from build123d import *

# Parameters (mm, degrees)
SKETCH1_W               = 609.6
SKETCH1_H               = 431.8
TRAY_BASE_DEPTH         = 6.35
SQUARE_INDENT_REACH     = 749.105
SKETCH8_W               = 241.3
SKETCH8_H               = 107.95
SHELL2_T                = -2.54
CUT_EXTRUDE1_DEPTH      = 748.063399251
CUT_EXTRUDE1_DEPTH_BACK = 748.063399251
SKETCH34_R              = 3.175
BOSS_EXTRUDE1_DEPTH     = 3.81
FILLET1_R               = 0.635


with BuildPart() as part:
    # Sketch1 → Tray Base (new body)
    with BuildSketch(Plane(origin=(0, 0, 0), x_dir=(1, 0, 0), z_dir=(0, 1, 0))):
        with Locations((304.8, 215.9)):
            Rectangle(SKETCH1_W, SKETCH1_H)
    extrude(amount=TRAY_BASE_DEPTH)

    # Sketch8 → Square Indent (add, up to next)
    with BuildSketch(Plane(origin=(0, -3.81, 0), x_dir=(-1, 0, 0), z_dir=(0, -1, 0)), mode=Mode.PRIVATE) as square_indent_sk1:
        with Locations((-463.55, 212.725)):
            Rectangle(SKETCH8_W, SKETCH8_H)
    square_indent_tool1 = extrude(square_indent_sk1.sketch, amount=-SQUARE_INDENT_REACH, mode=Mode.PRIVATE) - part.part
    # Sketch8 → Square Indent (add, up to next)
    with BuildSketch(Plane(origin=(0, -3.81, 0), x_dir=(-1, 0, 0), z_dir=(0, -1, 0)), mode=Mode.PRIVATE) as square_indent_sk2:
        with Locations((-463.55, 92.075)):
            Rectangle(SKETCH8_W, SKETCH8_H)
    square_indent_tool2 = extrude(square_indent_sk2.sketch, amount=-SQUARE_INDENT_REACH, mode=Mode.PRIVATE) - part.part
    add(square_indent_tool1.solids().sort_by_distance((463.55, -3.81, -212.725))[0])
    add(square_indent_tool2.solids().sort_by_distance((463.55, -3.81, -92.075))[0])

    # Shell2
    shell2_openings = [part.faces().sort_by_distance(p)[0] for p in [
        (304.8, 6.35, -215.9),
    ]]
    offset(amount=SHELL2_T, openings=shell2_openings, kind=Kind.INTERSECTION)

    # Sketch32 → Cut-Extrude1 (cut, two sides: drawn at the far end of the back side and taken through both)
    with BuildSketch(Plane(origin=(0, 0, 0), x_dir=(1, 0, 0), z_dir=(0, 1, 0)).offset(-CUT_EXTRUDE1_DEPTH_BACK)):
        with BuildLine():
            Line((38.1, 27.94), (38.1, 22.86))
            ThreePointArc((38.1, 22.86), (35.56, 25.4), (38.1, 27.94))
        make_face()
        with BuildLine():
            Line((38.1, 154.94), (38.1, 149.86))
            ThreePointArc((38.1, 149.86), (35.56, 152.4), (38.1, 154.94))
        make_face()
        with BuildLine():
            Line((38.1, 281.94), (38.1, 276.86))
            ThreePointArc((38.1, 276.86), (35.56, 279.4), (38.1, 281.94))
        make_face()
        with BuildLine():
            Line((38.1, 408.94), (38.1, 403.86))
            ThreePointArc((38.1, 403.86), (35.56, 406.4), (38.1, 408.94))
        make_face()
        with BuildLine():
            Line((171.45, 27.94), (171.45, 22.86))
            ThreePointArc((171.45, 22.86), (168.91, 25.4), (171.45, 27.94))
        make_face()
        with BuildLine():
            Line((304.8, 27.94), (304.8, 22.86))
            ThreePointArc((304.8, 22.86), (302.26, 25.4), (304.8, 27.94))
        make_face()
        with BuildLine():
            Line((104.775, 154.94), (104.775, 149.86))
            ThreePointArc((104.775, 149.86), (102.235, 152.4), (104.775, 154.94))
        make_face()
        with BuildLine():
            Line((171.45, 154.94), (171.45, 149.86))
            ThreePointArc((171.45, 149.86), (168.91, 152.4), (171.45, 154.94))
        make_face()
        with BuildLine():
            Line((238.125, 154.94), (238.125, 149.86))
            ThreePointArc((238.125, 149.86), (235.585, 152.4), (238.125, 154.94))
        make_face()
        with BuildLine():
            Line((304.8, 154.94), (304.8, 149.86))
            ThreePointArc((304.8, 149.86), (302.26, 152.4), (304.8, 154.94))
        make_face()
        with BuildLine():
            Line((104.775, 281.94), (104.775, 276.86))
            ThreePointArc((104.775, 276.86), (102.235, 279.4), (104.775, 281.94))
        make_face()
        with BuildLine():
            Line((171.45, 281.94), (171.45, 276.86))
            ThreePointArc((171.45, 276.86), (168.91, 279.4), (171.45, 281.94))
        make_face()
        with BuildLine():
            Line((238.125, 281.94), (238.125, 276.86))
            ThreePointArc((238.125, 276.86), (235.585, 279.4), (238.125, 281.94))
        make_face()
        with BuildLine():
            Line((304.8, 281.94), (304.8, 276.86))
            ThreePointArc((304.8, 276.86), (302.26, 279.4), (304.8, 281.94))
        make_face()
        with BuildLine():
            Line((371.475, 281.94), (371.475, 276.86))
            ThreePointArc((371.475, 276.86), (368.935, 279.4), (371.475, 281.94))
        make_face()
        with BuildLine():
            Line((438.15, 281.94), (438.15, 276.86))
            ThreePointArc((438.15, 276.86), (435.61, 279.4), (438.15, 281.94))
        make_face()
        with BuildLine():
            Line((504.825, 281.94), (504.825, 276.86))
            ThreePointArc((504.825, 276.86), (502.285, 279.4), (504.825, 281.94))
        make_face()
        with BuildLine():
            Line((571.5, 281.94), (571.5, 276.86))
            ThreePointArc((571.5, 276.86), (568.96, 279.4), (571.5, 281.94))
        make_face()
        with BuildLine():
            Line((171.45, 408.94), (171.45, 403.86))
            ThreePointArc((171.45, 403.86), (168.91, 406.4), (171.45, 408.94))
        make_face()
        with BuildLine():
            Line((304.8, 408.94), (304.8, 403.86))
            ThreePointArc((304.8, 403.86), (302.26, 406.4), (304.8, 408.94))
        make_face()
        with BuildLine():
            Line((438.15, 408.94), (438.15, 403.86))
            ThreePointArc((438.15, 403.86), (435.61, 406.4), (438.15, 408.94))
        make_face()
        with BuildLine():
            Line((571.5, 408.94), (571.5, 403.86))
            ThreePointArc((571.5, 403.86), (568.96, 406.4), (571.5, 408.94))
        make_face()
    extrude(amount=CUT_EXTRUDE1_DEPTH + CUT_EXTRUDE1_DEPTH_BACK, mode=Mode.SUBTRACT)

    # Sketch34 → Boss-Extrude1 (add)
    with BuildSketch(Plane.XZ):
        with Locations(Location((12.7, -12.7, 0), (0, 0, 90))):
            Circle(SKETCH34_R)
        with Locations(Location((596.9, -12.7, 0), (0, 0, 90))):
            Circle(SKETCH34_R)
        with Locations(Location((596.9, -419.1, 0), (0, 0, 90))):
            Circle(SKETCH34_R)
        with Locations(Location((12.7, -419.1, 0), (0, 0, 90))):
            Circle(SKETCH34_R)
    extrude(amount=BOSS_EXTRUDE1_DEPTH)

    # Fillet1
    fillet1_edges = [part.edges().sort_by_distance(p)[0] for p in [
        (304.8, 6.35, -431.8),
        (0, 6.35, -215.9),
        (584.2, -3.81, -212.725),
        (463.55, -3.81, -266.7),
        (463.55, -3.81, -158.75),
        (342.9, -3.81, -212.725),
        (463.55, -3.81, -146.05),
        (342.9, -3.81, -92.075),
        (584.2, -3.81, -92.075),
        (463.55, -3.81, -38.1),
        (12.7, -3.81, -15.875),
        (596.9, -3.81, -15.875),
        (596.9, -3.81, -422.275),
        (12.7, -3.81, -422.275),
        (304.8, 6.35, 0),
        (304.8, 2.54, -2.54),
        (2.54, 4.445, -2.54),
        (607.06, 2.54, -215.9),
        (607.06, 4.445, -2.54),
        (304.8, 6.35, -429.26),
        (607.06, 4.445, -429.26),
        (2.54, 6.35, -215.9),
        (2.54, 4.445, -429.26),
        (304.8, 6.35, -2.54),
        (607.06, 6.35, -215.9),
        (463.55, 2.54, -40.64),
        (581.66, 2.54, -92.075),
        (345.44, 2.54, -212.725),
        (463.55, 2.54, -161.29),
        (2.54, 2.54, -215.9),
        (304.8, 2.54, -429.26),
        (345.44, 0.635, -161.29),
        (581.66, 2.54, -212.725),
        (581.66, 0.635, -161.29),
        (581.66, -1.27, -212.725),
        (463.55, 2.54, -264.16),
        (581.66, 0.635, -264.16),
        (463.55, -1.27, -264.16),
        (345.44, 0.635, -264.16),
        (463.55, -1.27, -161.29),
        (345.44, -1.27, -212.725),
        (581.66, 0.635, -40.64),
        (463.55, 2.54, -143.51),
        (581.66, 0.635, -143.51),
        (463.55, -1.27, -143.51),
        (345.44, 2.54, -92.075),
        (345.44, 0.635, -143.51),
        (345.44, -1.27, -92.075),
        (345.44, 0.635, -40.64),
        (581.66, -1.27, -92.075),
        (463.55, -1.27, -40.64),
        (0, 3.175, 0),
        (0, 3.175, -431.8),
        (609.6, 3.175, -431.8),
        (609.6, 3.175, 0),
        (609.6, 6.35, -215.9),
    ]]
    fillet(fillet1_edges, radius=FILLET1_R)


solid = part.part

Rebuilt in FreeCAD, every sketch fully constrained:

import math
import FreeCAD as App
import Part
import Sketcher

V = App.Vector
Q = App.Units.Quantity


def edges_at(feature, points):
    """Names of the edges that pass closest to the given points."""
    edges = feature.Shape.Edges
    near = lambda p: min(range(len(edges)), key=lambda i: edges[i].distToShape(Part.Vertex(*p))[0])
    return sorted({f"Edge{near(p) + 1}" for p in points})


def faces_at(feature, points):
    """Names of the faces that lie closest to the given points."""
    faces = feature.Shape.Faces
    near = lambda p: min(range(len(faces)), key=lambda i: faces[i].distToShape(Part.Vertex(*p))[0])
    return sorted({f"Face{near(p) + 1}" for p in points})

doc = App.newDocument("Part")
body = doc.addObject("PartDesign::Body", "Body")

sketch1 = body.newObject("Sketcher::SketchObject", "Sketch")
sketch1.AttachmentSupport = (doc.getObject("XZ_Plane"), [""])
sketch1.MapMode = "FlatFace"
sketch1.addGeometry(Part.LineSegment(V(0, -431.8, 0), V(0, 0, 0)), False)
sketch1.addGeometry(Part.LineSegment(V(0, 0, 0), V(609.6, 0, 0)), False)
sketch1.addGeometry(Part.LineSegment(V(609.6, 0, 0), V(609.6, -431.8, 0)), False)
sketch1.addGeometry(Part.LineSegment(V(609.6, -431.8, 0), V(0, -431.8, 0)), False)
sketch1.addConstraint(Sketcher.Constraint("Coincident", 0, 2, 1, 1))
sketch1.addConstraint(Sketcher.Constraint("Coincident", 1, 2, 2, 1))
sketch1.addConstraint(Sketcher.Constraint("Coincident", 2, 2, 3, 1))
sketch1.addConstraint(Sketcher.Constraint("Coincident", 3, 2, 0, 1))
sketch1.addConstraint(Sketcher.Constraint("Vertical", 0))
sketch1.addConstraint(Sketcher.Constraint("Horizontal", 1))
sketch1.addConstraint(Sketcher.Constraint("Vertical", 2))
sketch1.addConstraint(Sketcher.Constraint("Horizontal", 3))
sketch1.addConstraint(Sketcher.Constraint("Coincident", 0, 2, -1, 1))
sketch1.addConstraint(Sketcher.Constraint("DistanceX", 1, 1, 1, 2, Q("24 in")))
sketch1.addConstraint(Sketcher.Constraint("DistanceY", 0, 1, 0, 2, Q("17 in")))
pad1 = body.newObject("PartDesign::Pad", "Pad")
pad1.Profile = sketch1
pad1.Length = Q("0.25 in")
pad1.Reversed = True

sketch2 = body.newObject("Sketcher::SketchObject", "Sketch001")
sketch2.AttachmentSupport = (doc.getObject("XZ_Plane"), [""])
sketch2.MapMode = "FlatFace"
sketch2.AttachmentOffset = App.Placement(V(0, 0, 0.15 * 25.4), App.Rotation())
sketch2.addGeometry(Part.LineSegment(V(584.2, -266.7, 0), V(584.2, -158.75, 0)), False)
sketch2.addGeometry(Part.LineSegment(V(584.2, -158.75, 0), V(342.9, -158.75, 0)), False)
sketch2.addGeometry(Part.LineSegment(V(342.9, -158.75, 0), V(342.9, -266.7, 0)), False)
sketch2.addGeometry(Part.LineSegment(V(342.9, -266.7, 0), V(584.2, -266.7, 0)), False)
sketch2.addConstraint(Sketcher.Constraint("Coincident", 0, 2, 1, 1))
sketch2.addConstraint(Sketcher.Constraint("Coincident", 1, 2, 2, 1))
sketch2.addConstraint(Sketcher.Constraint("Coincident", 2, 2, 3, 1))
sketch2.addConstraint(Sketcher.Constraint("Coincident", 3, 2, 0, 1))
sketch2.addConstraint(Sketcher.Constraint("Vertical", 0))
sketch2.addConstraint(Sketcher.Constraint("Horizontal", 1))
sketch2.addConstraint(Sketcher.Constraint("Vertical", 2))
sketch2.addConstraint(Sketcher.Constraint("Horizontal", 3))
sketch2.addConstraint(Sketcher.Constraint("DistanceX", 1, 2, 1, 1, Q("9.5 in")))
sketch2.addConstraint(Sketcher.Constraint("DistanceX", -1, 1, 0, 2, Q("23 in")))
sketch2.addConstraint(Sketcher.Constraint("DistanceY", 0, 1, 0, 2, Q("4.25 in")))
sketch2.addConstraint(Sketcher.Constraint("DistanceY", 2, 2, -1, 1, Q("10.5 in")))
pad2 = body.newObject("PartDesign::Pad", "Pad001")
pad2.Profile = sketch2
pad2.Type = "UpToFirst"
pad2.Reversed = True

sketch3 = body.newObject("Sketcher::SketchObject", "Sketch002")
sketch3.AttachmentSupport = (doc.getObject("XZ_Plane"), [""])
sketch3.MapMode = "FlatFace"
sketch3.AttachmentOffset = App.Placement(V(0, 0, 0.15 * 25.4), App.Rotation())
sketch3.addGeometry(Part.LineSegment(V(584.2, -146.05, 0), V(584.2, -38.1, 0)), False)
sketch3.addGeometry(Part.LineSegment(V(584.2, -38.1, 0), V(342.9, -38.1, 0)), False)
sketch3.addGeometry(Part.LineSegment(V(342.9, -38.1, 0), V(342.9, -146.05, 0)), False)
sketch3.addGeometry(Part.LineSegment(V(342.9, -146.05, 0), V(584.2, -146.05, 0)), False)
sketch3.addConstraint(Sketcher.Constraint("Coincident", 0, 2, 1, 1))
sketch3.addConstraint(Sketcher.Constraint("Coincident", 1, 2, 2, 1))
sketch3.addConstraint(Sketcher.Constraint("Coincident", 2, 2, 3, 1))
sketch3.addConstraint(Sketcher.Constraint("Coincident", 3, 2, 0, 1))
sketch3.addConstraint(Sketcher.Constraint("Vertical", 0))
sketch3.addConstraint(Sketcher.Constraint("Horizontal", 1))
sketch3.addConstraint(Sketcher.Constraint("Vertical", 2))
sketch3.addConstraint(Sketcher.Constraint("Horizontal", 3))
sketch3.addConstraint(Sketcher.Constraint("DistanceX", 1, 2, 1, 1, Q("9.5 in")))
sketch3.addConstraint(Sketcher.Constraint("DistanceX", -1, 1, 0, 2, Q("23 in")))
sketch3.addConstraint(Sketcher.Constraint("DistanceY", 0, 1, 0, 2, Q("4.25 in")))
sketch3.addConstraint(Sketcher.Constraint("DistanceY", 0, 2, -1, 1, Q("1.5 in")))
pad3 = body.newObject("PartDesign::Pad", "Pad002")
pad3.Profile = sketch3
pad3.Type = "UpToFirst"
pad3.Reversed = True
doc.recompute()

thickness = body.newObject("PartDesign::Thickness", "Thickness")
thickness.Base = (pad3, faces_at(pad3, [(304.8, 6.35, -215.9)]))
thickness.Value = Q("0.1 in")
thickness.Reversed = True
thickness.Join = "Intersection"

sketch4 = body.newObject("Sketcher::SketchObject", "Sketch003")
sketch4.AttachmentSupport = (doc.getObject("XZ_Plane"), [""])
sketch4.MapMode = "FlatFace"
sketch4.addGeometry(Part.LineSegment(V(38.1, -22.86, 0), V(38.1, -27.94, 0)), False)
sketch4.addGeometry(Part.ArcOfCircle(Part.Circle(V(38.1, -25.4, 0), V(0, 0, 1), 2.54), math.radians(90), math.radians(270)), False)
sketch4.addGeometry(Part.LineSegment(V(38.1, -149.86, 0), V(38.1, -154.94, 0)), False)
sketch4.addGeometry(Part.ArcOfCircle(Part.Circle(V(38.1, -152.4, 0), V(0, 0, 1), 2.54), math.radians(90), math.radians(270)), False)
sketch4.addGeometry(Part.LineSegment(V(38.1, -276.86, 0), V(38.1, -281.94, 0)), False)
sketch4.addGeometry(Part.ArcOfCircle(Part.Circle(V(38.1, -279.4, 0), V(0, 0, 1), 2.54), math.radians(90), math.radians(270)), False)
sketch4.addGeometry(Part.LineSegment(V(38.1, -403.86, 0), V(38.1, -408.94, 0)), False)
sketch4.addGeometry(Part.ArcOfCircle(Part.Circle(V(38.1, -406.4, 0), V(0, 0, 1), 2.54), math.radians(90), math.radians(270)), False)
sketch4.addGeometry(Part.LineSegment(V(171.45, -22.86, 0), V(171.45, -27.94, 0)), False)
sketch4.addGeometry(Part.ArcOfCircle(Part.Circle(V(171.45, -25.4, 0), V(0, 0, 1), 2.54), math.radians(90), math.radians(270)), False)
sketch4.addGeometry(Part.LineSegment(V(304.8, -22.86, 0), V(304.8, -27.94, 0)), False)
sketch4.addGeometry(Part.ArcOfCircle(Part.Circle(V(304.8, -25.4, 0), V(0, 0, 1), 2.54), math.radians(90), math.radians(270)), False)
sketch4.addGeometry(Part.LineSegment(V(104.775, -149.86, 0), V(104.775, -154.94, 0)), False)
sketch4.addGeometry(Part.ArcOfCircle(Part.Circle(V(104.775, -152.4, 0), V(0, 0, 1), 2.54), math.radians(90), math.radians(270)), False)
sketch4.addGeometry(Part.LineSegment(V(171.45, -149.86, 0), V(171.45, -154.94, 0)), False)
sketch4.addGeometry(Part.ArcOfCircle(Part.Circle(V(171.45, -152.4, 0), V(0, 0, 1), 2.54), math.radians(90), math.radians(270)), False)
sketch4.addGeometry(Part.LineSegment(V(238.125, -149.86, 0), V(238.125, -154.94, 0)), False)
sketch4.addGeometry(Part.ArcOfCircle(Part.Circle(V(238.125, -152.4, 0), V(0, 0, 1), 2.54), math.radians(90), math.radians(270)), False)
sketch4.addGeometry(Part.LineSegment(V(304.8, -149.86, 0), V(304.8, -154.94, 0)), False)
sketch4.addGeometry(Part.ArcOfCircle(Part.Circle(V(304.8, -152.4, 0), V(0, 0, 1), 2.54), math.radians(90), math.radians(270)), False)
sketch4.addGeometry(Part.LineSegment(V(104.775, -276.86, 0), V(104.775, -281.94, 0)), False)
sketch4.addGeometry(Part.ArcOfCircle(Part.Circle(V(104.775, -279.4, 0), V(0, 0, 1), 2.54), math.radians(90), math.radians(270)), False)
sketch4.addGeometry(Part.LineSegment(V(171.45, -276.86, 0), V(171.45, -281.94, 0)), False)
sketch4.addGeometry(Part.ArcOfCircle(Part.Circle(V(171.45, -279.4, 0), V(0, 0, 1), 2.54), math.radians(90), math.radians(270)), False)
sketch4.addGeometry(Part.LineSegment(V(238.125, -276.86, 0), V(238.125, -281.94, 0)), False)
sketch4.addGeometry(Part.ArcOfCircle(Part.Circle(V(238.125, -279.4, 0), V(0, 0, 1), 2.54), math.radians(90), math.radians(270)), False)
sketch4.addGeometry(Part.LineSegment(V(304.8, -276.86, 0), V(304.8, -281.94, 0)), False)
sketch4.addGeometry(Part.ArcOfCircle(Part.Circle(V(304.8, -279.4, 0), V(0, 0, 1), 2.54), math.radians(90), math.radians(270)), False)
sketch4.addGeometry(Part.LineSegment(V(371.475, -276.86, 0), V(371.475, -281.94, 0)), False)
sketch4.addGeometry(Part.ArcOfCircle(Part.Circle(V(371.475, -279.4, 0), V(0, 0, 1), 2.54), math.radians(90), math.radians(270)), False)
sketch4.addGeometry(Part.LineSegment(V(438.15, -276.86, 0), V(438.15, -281.94, 0)), False)
sketch4.addGeometry(Part.ArcOfCircle(Part.Circle(V(438.15, -279.4, 0), V(0, 0, 1), 2.54), math.radians(90), math.radians(270)), False)
sketch4.addGeometry(Part.LineSegment(V(504.825, -276.86, 0), V(504.825, -281.94, 0)), False)
sketch4.addGeometry(Part.ArcOfCircle(Part.Circle(V(504.825, -279.4, 0), V(0, 0, 1), 2.54), math.radians(90), math.radians(270)), False)
sketch4.addGeometry(Part.LineSegment(V(571.5, -276.86, 0), V(571.5, -281.94, 0)), False)
sketch4.addGeometry(Part.ArcOfCircle(Part.Circle(V(571.5, -279.4, 0), V(0, 0, 1), 2.54), math.radians(90), math.radians(270)), False)
sketch4.addGeometry(Part.LineSegment(V(171.45, -403.86, 0), V(171.45, -408.94, 0)), False)
sketch4.addGeometry(Part.ArcOfCircle(Part.Circle(V(171.45, -406.4, 0), V(0, 0, 1), 2.54), math.radians(90), math.radians(270)), False)
sketch4.addGeometry(Part.LineSegment(V(304.8, -403.86, 0), V(304.8, -408.94, 0)), False)
sketch4.addGeometry(Part.ArcOfCircle(Part.Circle(V(304.8, -406.4, 0), V(0, 0, 1), 2.54), math.radians(90), math.radians(270)), False)
sketch4.addGeometry(Part.LineSegment(V(438.15, -403.86, 0), V(438.15, -408.94, 0)), False)
sketch4.addGeometry(Part.ArcOfCircle(Part.Circle(V(438.15, -406.4, 0), V(0, 0, 1), 2.54), math.radians(90), math.radians(270)), False)
sketch4.addGeometry(Part.LineSegment(V(571.5, -403.86, 0), V(571.5, -408.94, 0)), False)
sketch4.addGeometry(Part.ArcOfCircle(Part.Circle(V(571.5, -406.4, 0), V(0, 0, 1), 2.54), math.radians(90), math.radians(270)), False)
sketch4.addConstraint(Sketcher.Constraint("Coincident", 0, 1, 1, 1))
sketch4.addConstraint(Sketcher.Constraint("Coincident", 1, 2, 0, 2))
sketch4.addConstraint(Sketcher.Constraint("Coincident", 2, 1, 3, 1))
sketch4.addConstraint(Sketcher.Constraint("Coincident", 3, 2, 2, 2))
sketch4.addConstraint(Sketcher.Constraint("Coincident", 4, 1, 5, 1))
sketch4.addConstraint(Sketcher.Constraint("Coincident", 5, 2, 4, 2))
sketch4.addConstraint(Sketcher.Constraint("Coincident", 6, 1, 7, 1))
sketch4.addConstraint(Sketcher.Constraint("Coincident", 7, 2, 6, 2))
sketch4.addConstraint(Sketcher.Constraint("Coincident", 8, 1, 9, 1))
sketch4.addConstraint(Sketcher.Constraint("Coincident", 9, 2, 8, 2))
sketch4.addConstraint(Sketcher.Constraint("Coincident", 10, 1, 11, 1))
sketch4.addConstraint(Sketcher.Constraint("Coincident", 11, 2, 10, 2))
sketch4.addConstraint(Sketcher.Constraint("Coincident", 12, 1, 13, 1))
sketch4.addConstraint(Sketcher.Constraint("Coincident", 13, 2, 12, 2))
sketch4.addConstraint(Sketcher.Constraint("Coincident", 14, 1, 15, 1))
sketch4.addConstraint(Sketcher.Constraint("Coincident", 15, 2, 14, 2))
sketch4.addConstraint(Sketcher.Constraint("Coincident", 16, 1, 17, 1))
sketch4.addConstraint(Sketcher.Constraint("Coincident", 17, 2, 16, 2))
sketch4.addConstraint(Sketcher.Constraint("Coincident", 18, 1, 19, 1))
sketch4.addConstraint(Sketcher.Constraint("Coincident", 19, 2, 18, 2))
sketch4.addConstraint(Sketcher.Constraint("Coincident", 20, 1, 21, 1))
sketch4.addConstraint(Sketcher.Constraint("Coincident", 21, 2, 20, 2))
sketch4.addConstraint(Sketcher.Constraint("Coincident", 22, 1, 23, 1))
sketch4.addConstraint(Sketcher.Constraint("Coincident", 23, 2, 22, 2))
sketch4.addConstraint(Sketcher.Constraint("Coincident", 24, 1, 25, 1))
sketch4.addConstraint(Sketcher.Constraint("Coincident", 25, 2, 24, 2))
sketch4.addConstraint(Sketcher.Constraint("Coincident", 26, 1, 27, 1))
sketch4.addConstraint(Sketcher.Constraint("Coincident", 27, 2, 26, 2))
sketch4.addConstraint(Sketcher.Constraint("Coincident", 28, 1, 29, 1))
sketch4.addConstraint(Sketcher.Constraint("Coincident", 29, 2, 28, 2))
sketch4.addConstraint(Sketcher.Constraint("Coincident", 30, 1, 31, 1))
sketch4.addConstraint(Sketcher.Constraint("Coincident", 31, 2, 30, 2))
sketch4.addConstraint(Sketcher.Constraint("Coincident", 32, 1, 33, 1))
sketch4.addConstraint(Sketcher.Constraint("Coincident", 33, 2, 32, 2))
sketch4.addConstraint(Sketcher.Constraint("Coincident", 34, 1, 35, 1))
sketch4.addConstraint(Sketcher.Constraint("Coincident", 35, 2, 34, 2))
sketch4.addConstraint(Sketcher.Constraint("Coincident", 36, 1, 37, 1))
sketch4.addConstraint(Sketcher.Constraint("Coincident", 37, 2, 36, 2))
sketch4.addConstraint(Sketcher.Constraint("Coincident", 38, 1, 39, 1))
sketch4.addConstraint(Sketcher.Constraint("Coincident", 39, 2, 38, 2))
sketch4.addConstraint(Sketcher.Constraint("Coincident", 40, 1, 41, 1))
sketch4.addConstraint(Sketcher.Constraint("Coincident", 41, 2, 40, 2))
sketch4.addConstraint(Sketcher.Constraint("Coincident", 42, 1, 43, 1))
sketch4.addConstraint(Sketcher.Constraint("Coincident", 43, 2, 42, 2))
sketch4.addConstraint(Sketcher.Constraint("Vertical", 0))
sketch4.addConstraint(Sketcher.Constraint("Vertical", 2))
sketch4.addConstraint(Sketcher.Constraint("Vertical", 4))
sketch4.addConstraint(Sketcher.Constraint("Vertical", 6))
sketch4.addConstraint(Sketcher.Constraint("Vertical", 8))
sketch4.addConstraint(Sketcher.Constraint("Vertical", 10))
sketch4.addConstraint(Sketcher.Constraint("Vertical", 12))
sketch4.addConstraint(Sketcher.Constraint("Vertical", 14))
sketch4.addConstraint(Sketcher.Constraint("Vertical", 16))
sketch4.addConstraint(Sketcher.Constraint("Vertical", 18))
sketch4.addConstraint(Sketcher.Constraint("Vertical", 20))
sketch4.addConstraint(Sketcher.Constraint("Vertical", 22))
sketch4.addConstraint(Sketcher.Constraint("Vertical", 24))
sketch4.addConstraint(Sketcher.Constraint("Vertical", 26))
sketch4.addConstraint(Sketcher.Constraint("Vertical", 28))
sketch4.addConstraint(Sketcher.Constraint("Vertical", 30))
sketch4.addConstraint(Sketcher.Constraint("Vertical", 32))
sketch4.addConstraint(Sketcher.Constraint("Vertical", 34))
sketch4.addConstraint(Sketcher.Constraint("Vertical", 36))
sketch4.addConstraint(Sketcher.Constraint("Vertical", 38))
sketch4.addConstraint(Sketcher.Constraint("Vertical", 40))
sketch4.addConstraint(Sketcher.Constraint("Vertical", 42))
sketch4.addConstraint(Sketcher.Constraint("Equal", 1, 3))
sketch4.addConstraint(Sketcher.Constraint("Equal", 3, 5))
sketch4.addConstraint(Sketcher.Constraint("Equal", 5, 7))
sketch4.addConstraint(Sketcher.Constraint("Equal", 7, 9))
sketch4.addConstraint(Sketcher.Constraint("Equal", 9, 11))
sketch4.addConstraint(Sketcher.Constraint("Equal", 11, 13))
sketch4.addConstraint(Sketcher.Constraint("Equal", 13, 15))
sketch4.addConstraint(Sketcher.Constraint("Equal", 15, 17))
sketch4.addConstraint(Sketcher.Constraint("Equal", 17, 19))
sketch4.addConstraint(Sketcher.Constraint("Equal", 19, 21))
sketch4.addConstraint(Sketcher.Constraint("Equal", 21, 23))
sketch4.addConstraint(Sketcher.Constraint("Equal", 23, 25))
sketch4.addConstraint(Sketcher.Constraint("Equal", 25, 27))
sketch4.addConstraint(Sketcher.Constraint("Equal", 27, 29))
sketch4.addConstraint(Sketcher.Constraint("Equal", 29, 31))
sketch4.addConstraint(Sketcher.Constraint("Equal", 31, 33))
sketch4.addConstraint(Sketcher.Constraint("Equal", 33, 35))
sketch4.addConstraint(Sketcher.Constraint("Equal", 35, 37))
sketch4.addConstraint(Sketcher.Constraint("Equal", 37, 39))
sketch4.addConstraint(Sketcher.Constraint("Equal", 39, 41))
sketch4.addConstraint(Sketcher.Constraint("Equal", 41, 43))
sketch4.addConstraint(Sketcher.Constraint("Horizontal", 1, 3, 9, 3))
sketch4.addConstraint(Sketcher.Constraint("Horizontal", 9, 3, 11, 3))
sketch4.addConstraint(Sketcher.Constraint("Horizontal", 3, 3, 13, 3))
sketch4.addConstraint(Sketcher.Constraint("Horizontal", 13, 3, 15, 3))
sketch4.addConstraint(Sketcher.Constraint("Horizontal", 15, 3, 17, 3))
sketch4.addConstraint(Sketcher.Constraint("Horizontal", 17, 3, 19, 3))
sketch4.addConstraint(Sketcher.Constraint("Horizontal", 5, 3, 21, 3))
sketch4.addConstraint(Sketcher.Constraint("Horizontal", 21, 3, 23, 3))
sketch4.addConstraint(Sketcher.Constraint("Horizontal", 23, 3, 25, 3))
sketch4.addConstraint(Sketcher.Constraint("Horizontal", 25, 3, 27, 3))
sketch4.addConstraint(Sketcher.Constraint("Horizontal", 27, 3, 29, 3))
sketch4.addConstraint(Sketcher.Constraint("Horizontal", 29, 3, 31, 3))
sketch4.addConstraint(Sketcher.Constraint("Horizontal", 31, 3, 33, 3))
sketch4.addConstraint(Sketcher.Constraint("Horizontal", 33, 3, 35, 3))
sketch4.addConstraint(Sketcher.Constraint("Horizontal", 7, 3, 37, 3))
sketch4.addConstraint(Sketcher.Constraint("Horizontal", 37, 3, 39, 3))
sketch4.addConstraint(Sketcher.Constraint("Horizontal", 39, 3, 41, 3))
sketch4.addConstraint(Sketcher.Constraint("Horizontal", 41, 3, 43, 3))
sketch4.addConstraint(Sketcher.Constraint("Vertical", 1, 3, 3, 3))
sketch4.addConstraint(Sketcher.Constraint("Vertical", 3, 3, 5, 3))
sketch4.addConstraint(Sketcher.Constraint("Vertical", 5, 3, 7, 3))
sketch4.addConstraint(Sketcher.Constraint("Vertical", 9, 3, 15, 3))
sketch4.addConstraint(Sketcher.Constraint("Vertical", 11, 3, 19, 3))
sketch4.addConstraint(Sketcher.Constraint("Vertical", 13, 3, 21, 3))
sketch4.addConstraint(Sketcher.Constraint("Vertical", 15, 3, 23, 3))
sketch4.addConstraint(Sketcher.Constraint("Vertical", 17, 3, 25, 3))
sketch4.addConstraint(Sketcher.Constraint("Vertical", 19, 3, 27, 3))
sketch4.addConstraint(Sketcher.Constraint("Vertical", 23, 3, 37, 3))
sketch4.addConstraint(Sketcher.Constraint("Vertical", 27, 3, 39, 3))
sketch4.addConstraint(Sketcher.Constraint("Vertical", 31, 3, 41, 3))
sketch4.addConstraint(Sketcher.Constraint("Vertical", 35, 3, 43, 3))
sketch4.addConstraint(Sketcher.Constraint("Vertical", 7, 3, 0, 1))
sketch4.addConstraint(Sketcher.Constraint("Vertical", 1, 2, 2, 1))
sketch4.addConstraint(Sketcher.Constraint("Vertical", 3, 2, 4, 1))
sketch4.addConstraint(Sketcher.Constraint("Vertical", 5, 2, 6, 1))
sketch4.addConstraint(Sketcher.Constraint("Vertical", 37, 3, 8, 1))
sketch4.addConstraint(Sketcher.Constraint("Vertical", 39, 3, 10, 1))
sketch4.addConstraint(Sketcher.Constraint("Vertical", 21, 3, 12, 1))
sketch4.addConstraint(Sketcher.Constraint("Vertical", 9, 2, 14, 1))
sketch4.addConstraint(Sketcher.Constraint("Vertical", 25, 3, 16, 1))
sketch4.addConstraint(Sketcher.Constraint("Vertical", 11, 2, 18, 1))
sketch4.addConstraint(Sketcher.Constraint("Vertical", 13, 2, 20, 1))
sketch4.addConstraint(Sketcher.Constraint("Vertical", 15, 2, 22, 1))
sketch4.addConstraint(Sketcher.Constraint("Vertical", 17, 2, 24, 1))
sketch4.addConstraint(Sketcher.Constraint("Vertical", 19, 2, 26, 1))
sketch4.addConstraint(Sketcher.Constraint("Vertical", 29, 3, 28, 1))
sketch4.addConstraint(Sketcher.Constraint("Vertical", 41, 3, 30, 1))
sketch4.addConstraint(Sketcher.Constraint("Vertical", 33, 3, 32, 1))
sketch4.addConstraint(Sketcher.Constraint("Vertical", 43, 3, 34, 1))
sketch4.addConstraint(Sketcher.Constraint("Vertical", 23, 2, 36, 1))
sketch4.addConstraint(Sketcher.Constraint("Vertical", 27, 2, 38, 1))
sketch4.addConstraint(Sketcher.Constraint("Vertical", 31, 2, 40, 1))
sketch4.addConstraint(Sketcher.Constraint("Vertical", 35, 2, 42, 1))
sketch4.addConstraint(Sketcher.Constraint("Radius", 1, Q("0.1 in")))
sketch4.addConstraint(Sketcher.Constraint("DistanceY", 1, 3, -1, 1, Q("1 in")))
sketch4.addConstraint(Sketcher.Constraint("DistanceY", 3, 3, -1, 1, Q("6 in")))
sketch4.addConstraint(Sketcher.Constraint("DistanceY", 5, 3, -1, 1, Q("11 in")))
sketch4.addConstraint(Sketcher.Constraint("DistanceY", 7, 3, -1, 1, Q("16 in")))
sketch4.addConstraint(Sketcher.Constraint("DistanceX", -1, 1, 11, 3, Q("12 in")))
sketch4.addConstraint(Sketcher.Constraint("DistanceX", -1, 1, 1, 3, Q("1.5 in")))
sketch4.addConstraint(Sketcher.Constraint("DistanceX", -1, 1, 35, 3, Q("22.5 in")))
sketch4.addConstraint(Sketcher.Constraint("DistanceX", -1, 1, 9, 3, Q("6.75 in")))
sketch4.addConstraint(Sketcher.Constraint("DistanceX", -1, 1, 31, 3, Q("17.25 in")))
sketch4.addConstraint(Sketcher.Constraint("DistanceX", -1, 1, 13, 3, Q("4.125 in")))
sketch4.addConstraint(Sketcher.Constraint("DistanceX", -1, 1, 17, 3, Q("9.375 in")))
sketch4.addConstraint(Sketcher.Constraint("DistanceX", -1, 1, 29, 3, Q("14.625 in")))
sketch4.addConstraint(Sketcher.Constraint("DistanceX", -1, 1, 33, 3, Q("19.875 in")))
pocket1 = body.newObject("PartDesign::Pocket", "Pocket")
pocket1.Profile = sketch4
pocket1.Type = "ThroughAll"
pocket1.Midplane = True

sketch5 = body.newObject("Sketcher::SketchObject", "Sketch004")
sketch5.AttachmentSupport = (doc.getObject("XZ_Plane"), [""])
sketch5.MapMode = "FlatFace"
sketch5.addGeometry(Part.Circle(V(12.7, -12.7, 0), V(0, 0, 1), 3.175), False)
sketch5.addGeometry(Part.Circle(V(596.9, -12.7, 0), V(0, 0, 1), 3.175), False)
sketch5.addGeometry(Part.Circle(V(596.9, -419.1, 0), V(0, 0, 1), 3.175), False)
sketch5.addGeometry(Part.Circle(V(12.7, -419.1, 0), V(0, 0, 1), 3.175), False)
sketch5.addConstraint(Sketcher.Constraint("Equal", 0, 1))
sketch5.addConstraint(Sketcher.Constraint("Equal", 1, 2))
sketch5.addConstraint(Sketcher.Constraint("Equal", 2, 3))
sketch5.addConstraint(Sketcher.Constraint("Horizontal", 0, 3, 1, 3))
sketch5.addConstraint(Sketcher.Constraint("Horizontal", 2, 3, 3, 3))
sketch5.addConstraint(Sketcher.Constraint("Vertical", 1, 3, 2, 3))
sketch5.addConstraint(Sketcher.Constraint("Vertical", 0, 3, 3, 3))
sketch5.addConstraint(Sketcher.Constraint("Diameter", 0, Q("0.25 in")))
sketch5.addConstraint(Sketcher.Constraint("DistanceX", 0, 3, 1, 3, Q("23 in")))
sketch5.addConstraint(Sketcher.Constraint("DistanceY", 2, 3, 1, 3, Q("16 in")))
sketch5.addConstraint(Sketcher.Constraint("DistanceX", -1, 1, 0, 3, Q("0.5 in")))
sketch5.addConstraint(Sketcher.Constraint("DistanceY", 0, 3, -1, 1, Q("0.5 in")))
pad4 = body.newObject("PartDesign::Pad", "Pad003")
pad4.Profile = sketch5
pad4.Length = Q("0.15 in")
doc.recompute()

fillet = body.newObject("PartDesign::Fillet", "Fillet")
fillet.Base = (pad4, edges_at(pad4, [
    (304.8, 6.35, -431.8),
    (0, 6.35, -215.9),
    (584.2, -3.81, -212.725),
    (463.55, -3.81, -266.7),
    (463.55, -3.81, -158.75),
    (342.9, -3.81, -212.725),
    (463.55, -3.81, -146.05),
    (342.9, -3.81, -92.075),
    (584.2, -3.81, -92.075),
    (463.55, -3.81, -38.1),
    (12.7, -3.81, -15.875),
    (596.9, -3.81, -15.875),
    (596.9, -3.81, -422.275),
    (12.7, -3.81, -422.275),
    (304.8, 6.35, 0),
    (304.8, 2.54, -2.54),
    (2.54, 4.445, -2.54),
    (607.06, 2.54, -215.9),
    (607.06, 4.445, -2.54),
    (304.8, 6.35, -429.26),
    (607.06, 4.445, -429.26),
    (2.54, 6.35, -215.9),
    (2.54, 4.445, -429.26),
    (304.8, 6.35, -2.54),
    (607.06, 6.35, -215.9),
    (463.55, 2.54, -40.64),
    (581.66, 2.54, -92.075),
    (345.44, 2.54, -212.725),
    (463.55, 2.54, -161.29),
    (2.54, 2.54, -215.9),
    (304.8, 2.54, -429.26),
    (345.44, 0.635, -161.29),
    (581.66, 2.54, -212.725),
    (581.66, 0.635, -161.29),
    (581.66, -1.27, -212.725),
    (463.55, 2.54, -264.16),
    (581.66, 0.635, -264.16),
    (463.55, -1.27, -264.16),
    (345.44, 0.635, -264.16),
    (463.55, -1.27, -161.29),
    (345.44, -1.27, -212.725),
    (581.66, 0.635, -40.64),
    (463.55, 2.54, -143.51),
    (581.66, 0.635, -143.51),
    (463.55, -1.27, -143.51),
    (345.44, 2.54, -92.075),
    (345.44, 0.635, -143.51),
    (345.44, -1.27, -92.075),
    (345.44, 0.635, -40.64),
    (581.66, -1.27, -92.075),
    (463.55, -1.27, -40.64),
    (0, 3.175, 0),
    (0, 3.175, -431.8),
    (609.6, 3.175, -431.8),
    (609.6, 3.175, 0),
    (609.6, 6.35, -215.9),
]))
fillet.Radius = Q("0.025 in")

doc.recompute()
